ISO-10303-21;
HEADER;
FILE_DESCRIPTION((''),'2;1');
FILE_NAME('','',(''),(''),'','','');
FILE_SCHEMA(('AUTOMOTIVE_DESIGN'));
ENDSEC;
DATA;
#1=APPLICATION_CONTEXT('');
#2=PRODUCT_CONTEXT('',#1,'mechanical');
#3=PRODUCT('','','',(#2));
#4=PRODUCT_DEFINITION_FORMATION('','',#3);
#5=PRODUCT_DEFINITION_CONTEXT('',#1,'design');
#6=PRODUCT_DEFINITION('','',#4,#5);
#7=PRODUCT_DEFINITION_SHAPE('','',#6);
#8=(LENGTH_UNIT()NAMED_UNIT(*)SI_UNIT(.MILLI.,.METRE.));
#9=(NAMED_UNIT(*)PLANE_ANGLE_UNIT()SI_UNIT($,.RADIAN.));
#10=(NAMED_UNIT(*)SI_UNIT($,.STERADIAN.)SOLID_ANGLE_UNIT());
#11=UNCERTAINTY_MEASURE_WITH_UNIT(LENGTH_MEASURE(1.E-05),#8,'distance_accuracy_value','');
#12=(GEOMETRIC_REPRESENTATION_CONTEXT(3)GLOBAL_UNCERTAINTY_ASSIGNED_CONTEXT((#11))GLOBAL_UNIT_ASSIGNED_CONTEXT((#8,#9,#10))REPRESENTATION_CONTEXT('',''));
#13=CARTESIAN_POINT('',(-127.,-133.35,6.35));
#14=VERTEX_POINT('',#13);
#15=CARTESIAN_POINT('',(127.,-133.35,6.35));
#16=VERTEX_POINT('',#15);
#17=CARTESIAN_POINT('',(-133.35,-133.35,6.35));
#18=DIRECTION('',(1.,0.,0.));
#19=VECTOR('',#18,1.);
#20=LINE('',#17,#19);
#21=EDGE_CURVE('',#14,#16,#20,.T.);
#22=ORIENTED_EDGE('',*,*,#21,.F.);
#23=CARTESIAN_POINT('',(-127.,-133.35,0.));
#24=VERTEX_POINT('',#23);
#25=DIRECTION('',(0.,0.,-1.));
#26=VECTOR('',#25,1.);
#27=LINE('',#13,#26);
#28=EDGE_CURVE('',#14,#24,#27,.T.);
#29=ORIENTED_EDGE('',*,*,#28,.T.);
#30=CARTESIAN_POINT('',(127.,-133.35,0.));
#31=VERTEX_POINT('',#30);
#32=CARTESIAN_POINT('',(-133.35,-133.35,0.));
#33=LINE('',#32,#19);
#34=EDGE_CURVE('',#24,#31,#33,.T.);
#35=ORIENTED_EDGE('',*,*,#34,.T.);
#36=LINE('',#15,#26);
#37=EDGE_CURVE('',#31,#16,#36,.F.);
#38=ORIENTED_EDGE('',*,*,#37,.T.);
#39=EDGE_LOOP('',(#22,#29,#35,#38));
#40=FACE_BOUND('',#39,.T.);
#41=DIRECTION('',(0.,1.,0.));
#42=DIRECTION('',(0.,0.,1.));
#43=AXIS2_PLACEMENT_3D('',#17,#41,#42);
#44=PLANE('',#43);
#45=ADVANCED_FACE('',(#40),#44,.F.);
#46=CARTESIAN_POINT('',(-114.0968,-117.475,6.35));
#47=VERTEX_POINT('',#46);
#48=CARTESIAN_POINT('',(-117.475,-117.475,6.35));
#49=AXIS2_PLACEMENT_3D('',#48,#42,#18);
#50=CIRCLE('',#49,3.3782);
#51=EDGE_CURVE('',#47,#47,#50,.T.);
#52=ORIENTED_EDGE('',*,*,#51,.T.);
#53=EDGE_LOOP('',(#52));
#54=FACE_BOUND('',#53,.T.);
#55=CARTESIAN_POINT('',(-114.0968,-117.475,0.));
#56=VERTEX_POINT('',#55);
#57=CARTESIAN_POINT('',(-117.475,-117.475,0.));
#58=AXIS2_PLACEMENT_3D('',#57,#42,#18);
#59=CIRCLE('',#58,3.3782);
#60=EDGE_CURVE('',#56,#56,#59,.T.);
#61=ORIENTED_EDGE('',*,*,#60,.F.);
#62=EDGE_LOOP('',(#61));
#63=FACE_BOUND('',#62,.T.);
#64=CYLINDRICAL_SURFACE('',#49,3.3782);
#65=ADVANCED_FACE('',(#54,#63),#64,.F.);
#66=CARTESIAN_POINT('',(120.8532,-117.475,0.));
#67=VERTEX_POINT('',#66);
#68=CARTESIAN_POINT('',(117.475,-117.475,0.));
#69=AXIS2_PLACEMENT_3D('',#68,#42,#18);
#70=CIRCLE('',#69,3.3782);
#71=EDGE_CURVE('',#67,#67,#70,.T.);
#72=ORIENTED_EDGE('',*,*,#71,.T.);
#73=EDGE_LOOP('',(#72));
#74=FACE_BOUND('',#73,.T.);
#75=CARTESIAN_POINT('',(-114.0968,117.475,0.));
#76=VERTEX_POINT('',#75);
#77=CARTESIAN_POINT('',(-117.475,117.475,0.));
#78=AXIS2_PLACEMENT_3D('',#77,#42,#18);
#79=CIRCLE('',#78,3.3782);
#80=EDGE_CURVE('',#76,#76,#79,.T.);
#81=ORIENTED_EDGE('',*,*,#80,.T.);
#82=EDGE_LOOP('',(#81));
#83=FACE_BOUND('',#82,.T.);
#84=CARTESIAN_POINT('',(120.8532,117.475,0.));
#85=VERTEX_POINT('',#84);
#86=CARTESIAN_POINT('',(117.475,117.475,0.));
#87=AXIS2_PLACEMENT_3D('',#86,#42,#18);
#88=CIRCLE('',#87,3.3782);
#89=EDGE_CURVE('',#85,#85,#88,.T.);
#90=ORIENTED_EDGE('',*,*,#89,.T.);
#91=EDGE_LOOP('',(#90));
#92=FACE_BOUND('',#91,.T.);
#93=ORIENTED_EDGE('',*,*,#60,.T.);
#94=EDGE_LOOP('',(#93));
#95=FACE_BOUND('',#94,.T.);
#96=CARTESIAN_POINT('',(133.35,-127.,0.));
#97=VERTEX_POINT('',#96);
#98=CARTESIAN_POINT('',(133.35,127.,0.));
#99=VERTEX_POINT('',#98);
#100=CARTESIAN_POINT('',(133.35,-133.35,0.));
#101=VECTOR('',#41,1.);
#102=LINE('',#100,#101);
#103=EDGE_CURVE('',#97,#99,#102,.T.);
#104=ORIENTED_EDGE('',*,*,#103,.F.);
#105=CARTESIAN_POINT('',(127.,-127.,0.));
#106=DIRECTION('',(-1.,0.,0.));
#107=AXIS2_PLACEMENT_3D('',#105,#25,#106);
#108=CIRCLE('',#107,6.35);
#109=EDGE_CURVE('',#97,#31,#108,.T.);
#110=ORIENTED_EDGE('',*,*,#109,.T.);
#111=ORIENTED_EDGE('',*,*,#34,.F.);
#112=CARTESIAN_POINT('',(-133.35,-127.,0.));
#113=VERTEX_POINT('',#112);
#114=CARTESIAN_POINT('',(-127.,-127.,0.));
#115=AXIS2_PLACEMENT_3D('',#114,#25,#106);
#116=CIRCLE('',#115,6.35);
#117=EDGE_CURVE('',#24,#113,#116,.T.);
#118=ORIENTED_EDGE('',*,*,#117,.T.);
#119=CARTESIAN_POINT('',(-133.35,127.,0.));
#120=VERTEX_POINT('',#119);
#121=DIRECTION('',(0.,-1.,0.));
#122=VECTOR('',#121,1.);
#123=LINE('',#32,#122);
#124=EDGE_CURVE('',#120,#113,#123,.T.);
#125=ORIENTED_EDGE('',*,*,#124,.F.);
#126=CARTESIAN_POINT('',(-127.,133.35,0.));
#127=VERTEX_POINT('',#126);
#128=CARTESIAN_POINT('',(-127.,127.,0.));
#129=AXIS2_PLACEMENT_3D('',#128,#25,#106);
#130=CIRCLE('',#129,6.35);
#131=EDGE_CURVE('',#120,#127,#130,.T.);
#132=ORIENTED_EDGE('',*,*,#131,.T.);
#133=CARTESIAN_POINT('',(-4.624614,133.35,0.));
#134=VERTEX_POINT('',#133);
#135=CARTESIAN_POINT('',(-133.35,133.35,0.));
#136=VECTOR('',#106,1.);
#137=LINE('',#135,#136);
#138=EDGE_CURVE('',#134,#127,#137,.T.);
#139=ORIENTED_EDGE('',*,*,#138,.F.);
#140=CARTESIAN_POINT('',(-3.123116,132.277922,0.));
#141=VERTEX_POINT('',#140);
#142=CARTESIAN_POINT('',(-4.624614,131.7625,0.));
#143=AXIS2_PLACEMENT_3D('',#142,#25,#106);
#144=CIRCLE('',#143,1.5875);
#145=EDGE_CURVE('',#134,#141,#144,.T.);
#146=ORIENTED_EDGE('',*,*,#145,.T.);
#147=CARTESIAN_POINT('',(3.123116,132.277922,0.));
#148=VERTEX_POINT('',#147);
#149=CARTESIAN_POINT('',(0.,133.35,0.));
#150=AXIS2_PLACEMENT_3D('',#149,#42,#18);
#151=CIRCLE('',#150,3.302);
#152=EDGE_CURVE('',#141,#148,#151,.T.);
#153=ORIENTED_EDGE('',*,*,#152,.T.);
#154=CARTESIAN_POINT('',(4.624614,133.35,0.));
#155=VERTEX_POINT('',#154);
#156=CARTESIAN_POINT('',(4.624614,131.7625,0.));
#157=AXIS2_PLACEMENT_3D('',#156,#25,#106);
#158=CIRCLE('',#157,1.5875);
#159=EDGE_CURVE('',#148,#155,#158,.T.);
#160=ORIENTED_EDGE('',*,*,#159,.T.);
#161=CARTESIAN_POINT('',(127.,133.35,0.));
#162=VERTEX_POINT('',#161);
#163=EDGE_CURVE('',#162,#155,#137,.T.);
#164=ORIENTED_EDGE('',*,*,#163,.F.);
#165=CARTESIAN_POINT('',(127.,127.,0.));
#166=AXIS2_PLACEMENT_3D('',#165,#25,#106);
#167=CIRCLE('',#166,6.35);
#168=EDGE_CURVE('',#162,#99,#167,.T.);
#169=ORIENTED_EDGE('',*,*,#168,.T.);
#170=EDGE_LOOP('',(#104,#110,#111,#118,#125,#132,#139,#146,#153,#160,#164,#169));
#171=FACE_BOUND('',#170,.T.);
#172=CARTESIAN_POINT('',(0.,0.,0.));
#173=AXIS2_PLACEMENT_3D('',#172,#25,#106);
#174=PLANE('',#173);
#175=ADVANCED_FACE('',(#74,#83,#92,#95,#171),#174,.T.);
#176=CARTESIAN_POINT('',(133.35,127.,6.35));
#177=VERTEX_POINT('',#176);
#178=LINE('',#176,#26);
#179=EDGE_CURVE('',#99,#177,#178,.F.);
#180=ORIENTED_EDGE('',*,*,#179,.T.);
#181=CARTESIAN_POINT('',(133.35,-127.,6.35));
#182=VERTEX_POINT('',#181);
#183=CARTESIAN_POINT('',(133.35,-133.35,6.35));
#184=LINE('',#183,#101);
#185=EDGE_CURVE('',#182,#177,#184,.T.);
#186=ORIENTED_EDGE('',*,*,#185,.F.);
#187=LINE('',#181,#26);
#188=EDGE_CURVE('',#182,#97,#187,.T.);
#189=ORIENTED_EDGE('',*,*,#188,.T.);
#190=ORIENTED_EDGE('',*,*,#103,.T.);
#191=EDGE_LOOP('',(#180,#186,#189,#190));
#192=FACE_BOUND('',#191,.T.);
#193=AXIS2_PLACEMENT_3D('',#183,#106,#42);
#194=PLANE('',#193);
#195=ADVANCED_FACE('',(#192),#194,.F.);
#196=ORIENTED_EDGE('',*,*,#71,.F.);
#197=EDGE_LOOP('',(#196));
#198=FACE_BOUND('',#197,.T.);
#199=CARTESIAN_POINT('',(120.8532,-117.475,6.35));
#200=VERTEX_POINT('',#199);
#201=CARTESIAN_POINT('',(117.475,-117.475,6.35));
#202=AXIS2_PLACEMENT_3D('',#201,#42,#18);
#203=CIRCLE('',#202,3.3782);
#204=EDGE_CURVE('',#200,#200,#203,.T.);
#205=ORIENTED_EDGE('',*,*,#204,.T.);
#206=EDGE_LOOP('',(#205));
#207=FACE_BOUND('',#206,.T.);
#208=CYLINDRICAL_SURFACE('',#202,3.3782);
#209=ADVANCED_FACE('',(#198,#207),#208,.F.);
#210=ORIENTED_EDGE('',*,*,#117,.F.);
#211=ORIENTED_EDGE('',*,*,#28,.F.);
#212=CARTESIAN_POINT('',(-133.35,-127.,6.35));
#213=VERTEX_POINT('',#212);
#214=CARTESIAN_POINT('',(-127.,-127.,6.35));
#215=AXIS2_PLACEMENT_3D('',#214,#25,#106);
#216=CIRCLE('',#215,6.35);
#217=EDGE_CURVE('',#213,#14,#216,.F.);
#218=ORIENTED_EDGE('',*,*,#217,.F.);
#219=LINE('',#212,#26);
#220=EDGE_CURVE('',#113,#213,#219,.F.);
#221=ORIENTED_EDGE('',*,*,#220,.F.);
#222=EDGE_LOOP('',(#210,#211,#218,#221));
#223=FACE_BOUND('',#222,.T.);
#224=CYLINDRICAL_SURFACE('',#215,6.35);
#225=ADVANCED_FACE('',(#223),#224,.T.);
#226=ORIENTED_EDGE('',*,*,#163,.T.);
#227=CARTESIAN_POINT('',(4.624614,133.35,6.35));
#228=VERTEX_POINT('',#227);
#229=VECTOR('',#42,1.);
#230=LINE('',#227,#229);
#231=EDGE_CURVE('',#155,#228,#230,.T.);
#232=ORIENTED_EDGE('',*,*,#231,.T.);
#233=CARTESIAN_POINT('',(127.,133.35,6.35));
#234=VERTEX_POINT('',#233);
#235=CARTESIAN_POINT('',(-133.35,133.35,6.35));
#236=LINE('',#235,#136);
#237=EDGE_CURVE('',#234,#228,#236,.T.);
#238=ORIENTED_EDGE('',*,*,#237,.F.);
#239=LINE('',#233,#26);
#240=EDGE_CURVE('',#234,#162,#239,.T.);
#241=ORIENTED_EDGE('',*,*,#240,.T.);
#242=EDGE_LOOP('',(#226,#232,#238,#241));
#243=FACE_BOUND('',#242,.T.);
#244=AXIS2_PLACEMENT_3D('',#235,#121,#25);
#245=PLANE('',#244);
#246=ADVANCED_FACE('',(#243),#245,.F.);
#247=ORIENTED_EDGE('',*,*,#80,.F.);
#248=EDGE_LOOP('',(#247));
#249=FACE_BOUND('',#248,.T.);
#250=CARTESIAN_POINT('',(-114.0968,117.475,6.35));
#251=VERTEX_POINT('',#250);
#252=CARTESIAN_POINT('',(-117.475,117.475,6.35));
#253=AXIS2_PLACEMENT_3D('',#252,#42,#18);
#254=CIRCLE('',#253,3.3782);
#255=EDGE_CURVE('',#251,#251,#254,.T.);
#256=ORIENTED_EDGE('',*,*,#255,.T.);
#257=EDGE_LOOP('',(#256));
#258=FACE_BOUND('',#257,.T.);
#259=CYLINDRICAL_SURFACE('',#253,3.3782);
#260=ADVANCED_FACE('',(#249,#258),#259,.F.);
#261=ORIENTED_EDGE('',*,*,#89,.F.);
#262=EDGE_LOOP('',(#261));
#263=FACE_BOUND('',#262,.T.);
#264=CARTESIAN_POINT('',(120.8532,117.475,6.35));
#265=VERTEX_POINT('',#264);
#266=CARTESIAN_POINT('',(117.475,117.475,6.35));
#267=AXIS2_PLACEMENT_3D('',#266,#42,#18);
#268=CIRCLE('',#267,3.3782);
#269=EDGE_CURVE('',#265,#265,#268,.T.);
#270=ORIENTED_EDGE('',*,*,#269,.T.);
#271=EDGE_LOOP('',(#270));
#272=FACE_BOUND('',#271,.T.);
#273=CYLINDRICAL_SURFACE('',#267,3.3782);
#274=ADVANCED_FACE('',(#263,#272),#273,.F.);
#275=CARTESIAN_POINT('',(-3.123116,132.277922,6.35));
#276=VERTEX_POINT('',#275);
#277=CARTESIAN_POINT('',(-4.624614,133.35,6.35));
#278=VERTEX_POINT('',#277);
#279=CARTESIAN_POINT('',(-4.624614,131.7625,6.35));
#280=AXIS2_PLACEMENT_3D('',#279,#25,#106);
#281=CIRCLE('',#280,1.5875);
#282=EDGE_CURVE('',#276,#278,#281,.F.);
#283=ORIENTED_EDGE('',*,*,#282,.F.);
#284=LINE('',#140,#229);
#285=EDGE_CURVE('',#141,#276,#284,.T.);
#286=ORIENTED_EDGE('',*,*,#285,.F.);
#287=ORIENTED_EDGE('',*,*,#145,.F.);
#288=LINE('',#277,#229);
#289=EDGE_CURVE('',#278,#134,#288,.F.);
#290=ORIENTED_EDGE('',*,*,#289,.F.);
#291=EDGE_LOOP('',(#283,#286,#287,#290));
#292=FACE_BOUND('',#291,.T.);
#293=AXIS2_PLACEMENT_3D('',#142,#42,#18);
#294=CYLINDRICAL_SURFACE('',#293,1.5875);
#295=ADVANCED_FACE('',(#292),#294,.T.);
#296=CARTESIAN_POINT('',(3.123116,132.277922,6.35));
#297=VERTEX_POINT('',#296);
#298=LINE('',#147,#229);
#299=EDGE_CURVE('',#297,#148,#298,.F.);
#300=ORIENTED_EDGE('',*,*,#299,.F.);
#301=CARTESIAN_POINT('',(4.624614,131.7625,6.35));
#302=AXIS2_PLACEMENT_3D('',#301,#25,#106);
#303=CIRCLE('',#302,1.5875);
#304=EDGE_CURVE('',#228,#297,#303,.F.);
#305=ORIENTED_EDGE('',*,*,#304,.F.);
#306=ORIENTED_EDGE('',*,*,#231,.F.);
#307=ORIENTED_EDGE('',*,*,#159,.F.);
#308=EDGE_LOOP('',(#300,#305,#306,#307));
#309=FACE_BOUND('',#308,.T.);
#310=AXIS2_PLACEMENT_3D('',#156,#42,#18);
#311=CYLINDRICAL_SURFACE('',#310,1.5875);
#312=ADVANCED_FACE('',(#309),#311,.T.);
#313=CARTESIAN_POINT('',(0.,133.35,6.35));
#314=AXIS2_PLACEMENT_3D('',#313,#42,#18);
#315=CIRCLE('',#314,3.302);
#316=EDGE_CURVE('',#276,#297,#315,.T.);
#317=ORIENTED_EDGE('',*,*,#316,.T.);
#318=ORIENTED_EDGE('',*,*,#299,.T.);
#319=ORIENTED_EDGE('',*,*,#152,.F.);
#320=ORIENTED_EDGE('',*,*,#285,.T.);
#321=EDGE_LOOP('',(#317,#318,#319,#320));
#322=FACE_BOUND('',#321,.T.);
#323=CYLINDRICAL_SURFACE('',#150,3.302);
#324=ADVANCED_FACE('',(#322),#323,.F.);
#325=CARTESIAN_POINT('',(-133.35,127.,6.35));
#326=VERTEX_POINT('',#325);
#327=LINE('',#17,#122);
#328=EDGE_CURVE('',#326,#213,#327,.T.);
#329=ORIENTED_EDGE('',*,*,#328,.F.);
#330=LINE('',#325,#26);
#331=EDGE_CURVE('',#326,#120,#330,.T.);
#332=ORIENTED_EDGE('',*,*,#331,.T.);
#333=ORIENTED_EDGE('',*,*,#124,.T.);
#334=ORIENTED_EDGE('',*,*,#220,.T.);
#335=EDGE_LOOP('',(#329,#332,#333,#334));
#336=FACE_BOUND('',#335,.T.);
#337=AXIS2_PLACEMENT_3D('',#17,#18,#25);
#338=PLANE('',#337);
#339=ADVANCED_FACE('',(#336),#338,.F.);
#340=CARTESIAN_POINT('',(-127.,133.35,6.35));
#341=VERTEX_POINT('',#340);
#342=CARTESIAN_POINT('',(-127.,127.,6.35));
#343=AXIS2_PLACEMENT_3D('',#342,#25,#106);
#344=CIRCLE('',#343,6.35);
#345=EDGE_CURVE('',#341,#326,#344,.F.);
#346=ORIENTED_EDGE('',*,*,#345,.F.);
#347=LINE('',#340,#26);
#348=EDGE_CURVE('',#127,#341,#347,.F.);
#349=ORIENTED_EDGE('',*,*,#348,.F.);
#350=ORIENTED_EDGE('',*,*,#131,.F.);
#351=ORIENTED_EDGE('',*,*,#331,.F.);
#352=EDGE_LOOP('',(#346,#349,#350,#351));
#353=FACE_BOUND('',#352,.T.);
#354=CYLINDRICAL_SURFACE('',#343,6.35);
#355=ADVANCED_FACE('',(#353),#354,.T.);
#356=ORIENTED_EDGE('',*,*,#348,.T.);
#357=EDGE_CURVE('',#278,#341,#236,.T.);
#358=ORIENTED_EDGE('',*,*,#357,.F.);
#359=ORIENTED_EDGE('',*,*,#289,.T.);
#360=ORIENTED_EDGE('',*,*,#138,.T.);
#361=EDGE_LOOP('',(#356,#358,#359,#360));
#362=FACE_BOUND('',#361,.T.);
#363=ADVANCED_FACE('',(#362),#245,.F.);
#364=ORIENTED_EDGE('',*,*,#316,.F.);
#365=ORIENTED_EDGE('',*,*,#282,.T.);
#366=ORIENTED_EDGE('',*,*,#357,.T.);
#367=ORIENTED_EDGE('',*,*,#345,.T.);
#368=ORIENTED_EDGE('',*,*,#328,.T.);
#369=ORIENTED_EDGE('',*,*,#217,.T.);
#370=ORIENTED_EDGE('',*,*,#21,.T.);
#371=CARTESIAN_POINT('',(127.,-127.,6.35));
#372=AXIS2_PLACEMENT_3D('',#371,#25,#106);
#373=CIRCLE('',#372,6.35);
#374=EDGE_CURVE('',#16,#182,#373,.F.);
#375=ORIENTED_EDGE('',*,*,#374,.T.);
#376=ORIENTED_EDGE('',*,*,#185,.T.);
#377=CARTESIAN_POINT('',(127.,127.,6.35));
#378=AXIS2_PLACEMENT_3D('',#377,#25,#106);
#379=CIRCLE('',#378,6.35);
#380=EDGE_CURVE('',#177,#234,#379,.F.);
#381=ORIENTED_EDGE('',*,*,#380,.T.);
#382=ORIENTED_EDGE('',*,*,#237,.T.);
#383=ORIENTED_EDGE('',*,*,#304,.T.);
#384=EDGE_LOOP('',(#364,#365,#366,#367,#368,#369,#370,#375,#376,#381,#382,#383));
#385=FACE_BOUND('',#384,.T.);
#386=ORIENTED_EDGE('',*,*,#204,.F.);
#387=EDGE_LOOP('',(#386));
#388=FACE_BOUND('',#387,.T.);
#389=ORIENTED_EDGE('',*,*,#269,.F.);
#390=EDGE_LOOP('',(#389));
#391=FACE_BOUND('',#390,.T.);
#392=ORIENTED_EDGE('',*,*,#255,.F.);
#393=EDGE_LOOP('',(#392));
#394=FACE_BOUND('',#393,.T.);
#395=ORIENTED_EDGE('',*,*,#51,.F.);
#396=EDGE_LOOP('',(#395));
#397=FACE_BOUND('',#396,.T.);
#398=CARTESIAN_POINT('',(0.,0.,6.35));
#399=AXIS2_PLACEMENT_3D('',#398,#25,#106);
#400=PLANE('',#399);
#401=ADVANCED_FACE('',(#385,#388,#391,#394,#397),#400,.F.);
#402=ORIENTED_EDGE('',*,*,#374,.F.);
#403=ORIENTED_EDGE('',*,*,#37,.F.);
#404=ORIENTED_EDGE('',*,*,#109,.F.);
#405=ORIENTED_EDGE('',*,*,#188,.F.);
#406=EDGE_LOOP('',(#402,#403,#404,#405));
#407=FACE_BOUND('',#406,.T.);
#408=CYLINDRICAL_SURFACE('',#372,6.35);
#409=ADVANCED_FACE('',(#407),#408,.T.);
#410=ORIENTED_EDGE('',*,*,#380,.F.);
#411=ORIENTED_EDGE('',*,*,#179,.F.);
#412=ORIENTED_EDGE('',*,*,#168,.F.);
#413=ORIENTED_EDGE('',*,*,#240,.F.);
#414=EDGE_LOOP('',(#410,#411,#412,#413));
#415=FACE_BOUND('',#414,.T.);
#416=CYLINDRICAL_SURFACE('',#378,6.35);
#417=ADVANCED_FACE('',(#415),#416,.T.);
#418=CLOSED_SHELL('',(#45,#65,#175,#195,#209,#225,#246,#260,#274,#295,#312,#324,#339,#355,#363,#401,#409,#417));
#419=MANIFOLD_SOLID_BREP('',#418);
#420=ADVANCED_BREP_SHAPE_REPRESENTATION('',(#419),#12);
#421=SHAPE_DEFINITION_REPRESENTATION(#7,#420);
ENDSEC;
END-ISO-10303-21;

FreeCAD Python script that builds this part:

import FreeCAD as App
import Part
import Sketcher

V = App.Vector
Q = App.Units.Quantity


def edges_at(feature, points):
    """Names of the edges that pass closest to the given points."""
    edges = feature.Shape.Edges
    near = lambda p: min(range(len(edges)), key=lambda i: edges[i].distToShape(Part.Vertex(*p))[0])
    return sorted({f"Edge{near(p) + 1}" for p in points})

doc = App.newDocument("Part")
params = doc.addObject("Spreadsheet::Sheet", "Params")
for row, (alias, value) in enumerate([
    ("sketch1_width", "10.5 in"),
    ("pad1_length", "0.25 in"),
    ("sketch2_diameter", "0.266 in"),
    ("hole_diameter", "0.266 in"),
    ("fillet_radius", "0.25 in"),
    ("sketch3_diameter", "0.26 in"),
    ("fillet2_radius", "0.0625 in"),
], start=1):
    params.set(f"A{row}", alias)
    params.set(f"B{row}", "=" + value)
    params.setAlias(f"B{row}", alias)

body = doc.addObject("PartDesign::Body", "Body")

# Sketch on XY plane
sketch1 = doc.addObject("Sketcher::SketchObject", "Sketch")
body.addObject(sketch1)
sketch1.AttachmentSupport = (doc.XY_Plane, [""])
sketch1.MapMode = "FlatFace"
sketch1.addGeometry(Part.LineSegment(V(-133, 133, 0), V(-133, -133, 0)), False)
sketch1.addGeometry(Part.LineSegment(V(-133, -133, 0), V(133, -133, 0)), False)
sketch1.addGeometry(Part.LineSegment(V(133, -133, 0), V(133, 133, 0)), False)
sketch1.addGeometry(Part.LineSegment(V(133, 133, 0), V(-133, 133, 0)), False)
sketch1.addConstraint(Sketcher.Constraint("Coincident", 0, 2, 1, 1))
sketch1.addConstraint(Sketcher.Constraint("Coincident", 1, 2, 2, 1))
sketch1.addConstraint(Sketcher.Constraint("Coincident", 2, 2, 3, 1))
sketch1.addConstraint(Sketcher.Constraint("Coincident", 3, 2, 0, 1))
sketch1.addConstraint(Sketcher.Constraint("Vertical", 0))
sketch1.addConstraint(Sketcher.Constraint("Horizontal", 1))
sketch1.addConstraint(Sketcher.Constraint("Vertical", 2))
sketch1.addConstraint(Sketcher.Constraint("Horizontal", 3))
sketch1.addConstraint(Sketcher.Constraint("Symmetric", 0, 2, 2, 2, -1, 1))
sketch1.addConstraint(Sketcher.Constraint("Equal", 3, 0))
sketch1.addConstraint(Sketcher.Constraint("DistanceX", 1, 1, 1, 2, Q("10.5 in")))
sketch1.setExpression("Constraints[10]", "Params.sketch1_width")
pad1 = doc.addObject("PartDesign::Pad", "Pad")
body.addObject(pad1)
pad1.Profile = sketch1
pad1.setExpression("Length", "Params.pad1_length")

# Sketch on XY plane
sketch2 = doc.addObject("Sketcher::SketchObject", "Sketch001")
body.addObject(sketch2)
sketch2.AttachmentSupport = (doc.XY_Plane, [""])
sketch2.MapMode = "FlatFace"
sketch2.AttachmentOffset = App.Placement(V(0, 0, 0.25 * 25.4), App.Rotation())
sketch2.addGeometry(Part.Circle(V(-117.5, 117.5, 0), V(0, 0, 1), 3.4), False)
sketch2.addGeometry(Part.Circle(V(-117.5, -117.5, 0), V(0, 0, 1), 3.4), False)
sketch2.addGeometry(Part.Circle(V(117.5, -117.5, 0), V(0, 0, 1), 3.4), False)
sketch2.addGeometry(Part.Circle(V(117.5, 117.5, 0), V(0, 0, 1), 3.4), False)
sketch2.addConstraint(Sketcher.Constraint("Equal", 0, 1))
sketch2.addConstraint(Sketcher.Constraint("Equal", 1, 2))
sketch2.addConstraint(Sketcher.Constraint("Equal", 2, 3))
sketch2.addConstraint(Sketcher.Constraint("Symmetric", 0, 3, 2, 3, -1, 1))
sketch2.addConstraint(Sketcher.Constraint("Symmetric", 1, 3, 3, 3, -1, 1))
sketch2.addConstraint(Sketcher.Constraint("Symmetric", 1, 3, 2, 3, -2))
sketch2.addConstraint(Sketcher.Constraint("Diameter", 0, Q("0.266 in")))
sketch2.addConstraint(Sketcher.Constraint("DistanceY", 1, 3, 0, 3, Q("9.25 in")))
sketch2.addConstraint(Sketcher.Constraint("DistanceX", 1, 3, 2, 3, Q("9.25 in")))
sketch2.setExpression("Constraints[6]", "Params.sketch2_diameter")
doc.recompute()
hole = doc.addObject("PartDesign::Hole", "Hole")
body.addObject(hole)
hole.Profile = sketch2
hole.ThreadType = "None"
hole.setExpression("Diameter", "Params.hole_diameter")
hole.DepthType = "ThroughAll"
doc.recompute()

fillet = doc.addObject("PartDesign::Fillet", "Fillet")
body.addObject(fillet)
fillet.Base = (hole, edges_at(hole, [
    (133.35, -133.35, 3.175),
    (-133.35, -133.35, 3.175),
    (-133.35, 133.35, 3.175),
    (133.35, 133.35, 3.175),
]))
fillet.setExpression("Radius", "Params.fillet_radius")

# Sketch on XY plane
sketch3 = doc.addObject("Sketcher::SketchObject", "Sketch002")
body.addObject(sketch3)
sketch3.AttachmentSupport = (doc.XY_Plane, [""])
sketch3.MapMode = "FlatFace"
sketch3.AttachmentOffset = App.Placement(V(0, 0, 0.25 * 25.4), App.Rotation())
sketch3.addGeometry(Part.Circle(V(0, 133.3, 0), V(0, 0, 1), 3.3), False)
sketch3.addConstraint(Sketcher.Constraint("PointOnObject", 0, 3, -2))
sketch3.addConstraint(Sketcher.Constraint("Diameter", 0, Q("0.26 in")))
sketch3.addConstraint(Sketcher.Constraint("DistanceY", -1, 1, 0, 3, Q("5.25 in")))
sketch3.setExpression("Constraints[1]", "Params.sketch3_diameter")
pocket1 = doc.addObject("PartDesign::Pocket", "Pocket")
body.addObject(pocket1)
pocket1.Profile = sketch3
pocket1.Type = "ThroughAll"
doc.recompute()

fillet2 = doc.addObject("PartDesign::Fillet", "Fillet001")
body.addObject(fillet2)
fillet2.Base = (pocket1, edges_at(pocket1, [(-3.302, 133.35, 3.175), (3.302, 133.35, 3.175)]))
fillet2.setExpression("Radius", "Params.fillet2_radius")

doc.recompute()
